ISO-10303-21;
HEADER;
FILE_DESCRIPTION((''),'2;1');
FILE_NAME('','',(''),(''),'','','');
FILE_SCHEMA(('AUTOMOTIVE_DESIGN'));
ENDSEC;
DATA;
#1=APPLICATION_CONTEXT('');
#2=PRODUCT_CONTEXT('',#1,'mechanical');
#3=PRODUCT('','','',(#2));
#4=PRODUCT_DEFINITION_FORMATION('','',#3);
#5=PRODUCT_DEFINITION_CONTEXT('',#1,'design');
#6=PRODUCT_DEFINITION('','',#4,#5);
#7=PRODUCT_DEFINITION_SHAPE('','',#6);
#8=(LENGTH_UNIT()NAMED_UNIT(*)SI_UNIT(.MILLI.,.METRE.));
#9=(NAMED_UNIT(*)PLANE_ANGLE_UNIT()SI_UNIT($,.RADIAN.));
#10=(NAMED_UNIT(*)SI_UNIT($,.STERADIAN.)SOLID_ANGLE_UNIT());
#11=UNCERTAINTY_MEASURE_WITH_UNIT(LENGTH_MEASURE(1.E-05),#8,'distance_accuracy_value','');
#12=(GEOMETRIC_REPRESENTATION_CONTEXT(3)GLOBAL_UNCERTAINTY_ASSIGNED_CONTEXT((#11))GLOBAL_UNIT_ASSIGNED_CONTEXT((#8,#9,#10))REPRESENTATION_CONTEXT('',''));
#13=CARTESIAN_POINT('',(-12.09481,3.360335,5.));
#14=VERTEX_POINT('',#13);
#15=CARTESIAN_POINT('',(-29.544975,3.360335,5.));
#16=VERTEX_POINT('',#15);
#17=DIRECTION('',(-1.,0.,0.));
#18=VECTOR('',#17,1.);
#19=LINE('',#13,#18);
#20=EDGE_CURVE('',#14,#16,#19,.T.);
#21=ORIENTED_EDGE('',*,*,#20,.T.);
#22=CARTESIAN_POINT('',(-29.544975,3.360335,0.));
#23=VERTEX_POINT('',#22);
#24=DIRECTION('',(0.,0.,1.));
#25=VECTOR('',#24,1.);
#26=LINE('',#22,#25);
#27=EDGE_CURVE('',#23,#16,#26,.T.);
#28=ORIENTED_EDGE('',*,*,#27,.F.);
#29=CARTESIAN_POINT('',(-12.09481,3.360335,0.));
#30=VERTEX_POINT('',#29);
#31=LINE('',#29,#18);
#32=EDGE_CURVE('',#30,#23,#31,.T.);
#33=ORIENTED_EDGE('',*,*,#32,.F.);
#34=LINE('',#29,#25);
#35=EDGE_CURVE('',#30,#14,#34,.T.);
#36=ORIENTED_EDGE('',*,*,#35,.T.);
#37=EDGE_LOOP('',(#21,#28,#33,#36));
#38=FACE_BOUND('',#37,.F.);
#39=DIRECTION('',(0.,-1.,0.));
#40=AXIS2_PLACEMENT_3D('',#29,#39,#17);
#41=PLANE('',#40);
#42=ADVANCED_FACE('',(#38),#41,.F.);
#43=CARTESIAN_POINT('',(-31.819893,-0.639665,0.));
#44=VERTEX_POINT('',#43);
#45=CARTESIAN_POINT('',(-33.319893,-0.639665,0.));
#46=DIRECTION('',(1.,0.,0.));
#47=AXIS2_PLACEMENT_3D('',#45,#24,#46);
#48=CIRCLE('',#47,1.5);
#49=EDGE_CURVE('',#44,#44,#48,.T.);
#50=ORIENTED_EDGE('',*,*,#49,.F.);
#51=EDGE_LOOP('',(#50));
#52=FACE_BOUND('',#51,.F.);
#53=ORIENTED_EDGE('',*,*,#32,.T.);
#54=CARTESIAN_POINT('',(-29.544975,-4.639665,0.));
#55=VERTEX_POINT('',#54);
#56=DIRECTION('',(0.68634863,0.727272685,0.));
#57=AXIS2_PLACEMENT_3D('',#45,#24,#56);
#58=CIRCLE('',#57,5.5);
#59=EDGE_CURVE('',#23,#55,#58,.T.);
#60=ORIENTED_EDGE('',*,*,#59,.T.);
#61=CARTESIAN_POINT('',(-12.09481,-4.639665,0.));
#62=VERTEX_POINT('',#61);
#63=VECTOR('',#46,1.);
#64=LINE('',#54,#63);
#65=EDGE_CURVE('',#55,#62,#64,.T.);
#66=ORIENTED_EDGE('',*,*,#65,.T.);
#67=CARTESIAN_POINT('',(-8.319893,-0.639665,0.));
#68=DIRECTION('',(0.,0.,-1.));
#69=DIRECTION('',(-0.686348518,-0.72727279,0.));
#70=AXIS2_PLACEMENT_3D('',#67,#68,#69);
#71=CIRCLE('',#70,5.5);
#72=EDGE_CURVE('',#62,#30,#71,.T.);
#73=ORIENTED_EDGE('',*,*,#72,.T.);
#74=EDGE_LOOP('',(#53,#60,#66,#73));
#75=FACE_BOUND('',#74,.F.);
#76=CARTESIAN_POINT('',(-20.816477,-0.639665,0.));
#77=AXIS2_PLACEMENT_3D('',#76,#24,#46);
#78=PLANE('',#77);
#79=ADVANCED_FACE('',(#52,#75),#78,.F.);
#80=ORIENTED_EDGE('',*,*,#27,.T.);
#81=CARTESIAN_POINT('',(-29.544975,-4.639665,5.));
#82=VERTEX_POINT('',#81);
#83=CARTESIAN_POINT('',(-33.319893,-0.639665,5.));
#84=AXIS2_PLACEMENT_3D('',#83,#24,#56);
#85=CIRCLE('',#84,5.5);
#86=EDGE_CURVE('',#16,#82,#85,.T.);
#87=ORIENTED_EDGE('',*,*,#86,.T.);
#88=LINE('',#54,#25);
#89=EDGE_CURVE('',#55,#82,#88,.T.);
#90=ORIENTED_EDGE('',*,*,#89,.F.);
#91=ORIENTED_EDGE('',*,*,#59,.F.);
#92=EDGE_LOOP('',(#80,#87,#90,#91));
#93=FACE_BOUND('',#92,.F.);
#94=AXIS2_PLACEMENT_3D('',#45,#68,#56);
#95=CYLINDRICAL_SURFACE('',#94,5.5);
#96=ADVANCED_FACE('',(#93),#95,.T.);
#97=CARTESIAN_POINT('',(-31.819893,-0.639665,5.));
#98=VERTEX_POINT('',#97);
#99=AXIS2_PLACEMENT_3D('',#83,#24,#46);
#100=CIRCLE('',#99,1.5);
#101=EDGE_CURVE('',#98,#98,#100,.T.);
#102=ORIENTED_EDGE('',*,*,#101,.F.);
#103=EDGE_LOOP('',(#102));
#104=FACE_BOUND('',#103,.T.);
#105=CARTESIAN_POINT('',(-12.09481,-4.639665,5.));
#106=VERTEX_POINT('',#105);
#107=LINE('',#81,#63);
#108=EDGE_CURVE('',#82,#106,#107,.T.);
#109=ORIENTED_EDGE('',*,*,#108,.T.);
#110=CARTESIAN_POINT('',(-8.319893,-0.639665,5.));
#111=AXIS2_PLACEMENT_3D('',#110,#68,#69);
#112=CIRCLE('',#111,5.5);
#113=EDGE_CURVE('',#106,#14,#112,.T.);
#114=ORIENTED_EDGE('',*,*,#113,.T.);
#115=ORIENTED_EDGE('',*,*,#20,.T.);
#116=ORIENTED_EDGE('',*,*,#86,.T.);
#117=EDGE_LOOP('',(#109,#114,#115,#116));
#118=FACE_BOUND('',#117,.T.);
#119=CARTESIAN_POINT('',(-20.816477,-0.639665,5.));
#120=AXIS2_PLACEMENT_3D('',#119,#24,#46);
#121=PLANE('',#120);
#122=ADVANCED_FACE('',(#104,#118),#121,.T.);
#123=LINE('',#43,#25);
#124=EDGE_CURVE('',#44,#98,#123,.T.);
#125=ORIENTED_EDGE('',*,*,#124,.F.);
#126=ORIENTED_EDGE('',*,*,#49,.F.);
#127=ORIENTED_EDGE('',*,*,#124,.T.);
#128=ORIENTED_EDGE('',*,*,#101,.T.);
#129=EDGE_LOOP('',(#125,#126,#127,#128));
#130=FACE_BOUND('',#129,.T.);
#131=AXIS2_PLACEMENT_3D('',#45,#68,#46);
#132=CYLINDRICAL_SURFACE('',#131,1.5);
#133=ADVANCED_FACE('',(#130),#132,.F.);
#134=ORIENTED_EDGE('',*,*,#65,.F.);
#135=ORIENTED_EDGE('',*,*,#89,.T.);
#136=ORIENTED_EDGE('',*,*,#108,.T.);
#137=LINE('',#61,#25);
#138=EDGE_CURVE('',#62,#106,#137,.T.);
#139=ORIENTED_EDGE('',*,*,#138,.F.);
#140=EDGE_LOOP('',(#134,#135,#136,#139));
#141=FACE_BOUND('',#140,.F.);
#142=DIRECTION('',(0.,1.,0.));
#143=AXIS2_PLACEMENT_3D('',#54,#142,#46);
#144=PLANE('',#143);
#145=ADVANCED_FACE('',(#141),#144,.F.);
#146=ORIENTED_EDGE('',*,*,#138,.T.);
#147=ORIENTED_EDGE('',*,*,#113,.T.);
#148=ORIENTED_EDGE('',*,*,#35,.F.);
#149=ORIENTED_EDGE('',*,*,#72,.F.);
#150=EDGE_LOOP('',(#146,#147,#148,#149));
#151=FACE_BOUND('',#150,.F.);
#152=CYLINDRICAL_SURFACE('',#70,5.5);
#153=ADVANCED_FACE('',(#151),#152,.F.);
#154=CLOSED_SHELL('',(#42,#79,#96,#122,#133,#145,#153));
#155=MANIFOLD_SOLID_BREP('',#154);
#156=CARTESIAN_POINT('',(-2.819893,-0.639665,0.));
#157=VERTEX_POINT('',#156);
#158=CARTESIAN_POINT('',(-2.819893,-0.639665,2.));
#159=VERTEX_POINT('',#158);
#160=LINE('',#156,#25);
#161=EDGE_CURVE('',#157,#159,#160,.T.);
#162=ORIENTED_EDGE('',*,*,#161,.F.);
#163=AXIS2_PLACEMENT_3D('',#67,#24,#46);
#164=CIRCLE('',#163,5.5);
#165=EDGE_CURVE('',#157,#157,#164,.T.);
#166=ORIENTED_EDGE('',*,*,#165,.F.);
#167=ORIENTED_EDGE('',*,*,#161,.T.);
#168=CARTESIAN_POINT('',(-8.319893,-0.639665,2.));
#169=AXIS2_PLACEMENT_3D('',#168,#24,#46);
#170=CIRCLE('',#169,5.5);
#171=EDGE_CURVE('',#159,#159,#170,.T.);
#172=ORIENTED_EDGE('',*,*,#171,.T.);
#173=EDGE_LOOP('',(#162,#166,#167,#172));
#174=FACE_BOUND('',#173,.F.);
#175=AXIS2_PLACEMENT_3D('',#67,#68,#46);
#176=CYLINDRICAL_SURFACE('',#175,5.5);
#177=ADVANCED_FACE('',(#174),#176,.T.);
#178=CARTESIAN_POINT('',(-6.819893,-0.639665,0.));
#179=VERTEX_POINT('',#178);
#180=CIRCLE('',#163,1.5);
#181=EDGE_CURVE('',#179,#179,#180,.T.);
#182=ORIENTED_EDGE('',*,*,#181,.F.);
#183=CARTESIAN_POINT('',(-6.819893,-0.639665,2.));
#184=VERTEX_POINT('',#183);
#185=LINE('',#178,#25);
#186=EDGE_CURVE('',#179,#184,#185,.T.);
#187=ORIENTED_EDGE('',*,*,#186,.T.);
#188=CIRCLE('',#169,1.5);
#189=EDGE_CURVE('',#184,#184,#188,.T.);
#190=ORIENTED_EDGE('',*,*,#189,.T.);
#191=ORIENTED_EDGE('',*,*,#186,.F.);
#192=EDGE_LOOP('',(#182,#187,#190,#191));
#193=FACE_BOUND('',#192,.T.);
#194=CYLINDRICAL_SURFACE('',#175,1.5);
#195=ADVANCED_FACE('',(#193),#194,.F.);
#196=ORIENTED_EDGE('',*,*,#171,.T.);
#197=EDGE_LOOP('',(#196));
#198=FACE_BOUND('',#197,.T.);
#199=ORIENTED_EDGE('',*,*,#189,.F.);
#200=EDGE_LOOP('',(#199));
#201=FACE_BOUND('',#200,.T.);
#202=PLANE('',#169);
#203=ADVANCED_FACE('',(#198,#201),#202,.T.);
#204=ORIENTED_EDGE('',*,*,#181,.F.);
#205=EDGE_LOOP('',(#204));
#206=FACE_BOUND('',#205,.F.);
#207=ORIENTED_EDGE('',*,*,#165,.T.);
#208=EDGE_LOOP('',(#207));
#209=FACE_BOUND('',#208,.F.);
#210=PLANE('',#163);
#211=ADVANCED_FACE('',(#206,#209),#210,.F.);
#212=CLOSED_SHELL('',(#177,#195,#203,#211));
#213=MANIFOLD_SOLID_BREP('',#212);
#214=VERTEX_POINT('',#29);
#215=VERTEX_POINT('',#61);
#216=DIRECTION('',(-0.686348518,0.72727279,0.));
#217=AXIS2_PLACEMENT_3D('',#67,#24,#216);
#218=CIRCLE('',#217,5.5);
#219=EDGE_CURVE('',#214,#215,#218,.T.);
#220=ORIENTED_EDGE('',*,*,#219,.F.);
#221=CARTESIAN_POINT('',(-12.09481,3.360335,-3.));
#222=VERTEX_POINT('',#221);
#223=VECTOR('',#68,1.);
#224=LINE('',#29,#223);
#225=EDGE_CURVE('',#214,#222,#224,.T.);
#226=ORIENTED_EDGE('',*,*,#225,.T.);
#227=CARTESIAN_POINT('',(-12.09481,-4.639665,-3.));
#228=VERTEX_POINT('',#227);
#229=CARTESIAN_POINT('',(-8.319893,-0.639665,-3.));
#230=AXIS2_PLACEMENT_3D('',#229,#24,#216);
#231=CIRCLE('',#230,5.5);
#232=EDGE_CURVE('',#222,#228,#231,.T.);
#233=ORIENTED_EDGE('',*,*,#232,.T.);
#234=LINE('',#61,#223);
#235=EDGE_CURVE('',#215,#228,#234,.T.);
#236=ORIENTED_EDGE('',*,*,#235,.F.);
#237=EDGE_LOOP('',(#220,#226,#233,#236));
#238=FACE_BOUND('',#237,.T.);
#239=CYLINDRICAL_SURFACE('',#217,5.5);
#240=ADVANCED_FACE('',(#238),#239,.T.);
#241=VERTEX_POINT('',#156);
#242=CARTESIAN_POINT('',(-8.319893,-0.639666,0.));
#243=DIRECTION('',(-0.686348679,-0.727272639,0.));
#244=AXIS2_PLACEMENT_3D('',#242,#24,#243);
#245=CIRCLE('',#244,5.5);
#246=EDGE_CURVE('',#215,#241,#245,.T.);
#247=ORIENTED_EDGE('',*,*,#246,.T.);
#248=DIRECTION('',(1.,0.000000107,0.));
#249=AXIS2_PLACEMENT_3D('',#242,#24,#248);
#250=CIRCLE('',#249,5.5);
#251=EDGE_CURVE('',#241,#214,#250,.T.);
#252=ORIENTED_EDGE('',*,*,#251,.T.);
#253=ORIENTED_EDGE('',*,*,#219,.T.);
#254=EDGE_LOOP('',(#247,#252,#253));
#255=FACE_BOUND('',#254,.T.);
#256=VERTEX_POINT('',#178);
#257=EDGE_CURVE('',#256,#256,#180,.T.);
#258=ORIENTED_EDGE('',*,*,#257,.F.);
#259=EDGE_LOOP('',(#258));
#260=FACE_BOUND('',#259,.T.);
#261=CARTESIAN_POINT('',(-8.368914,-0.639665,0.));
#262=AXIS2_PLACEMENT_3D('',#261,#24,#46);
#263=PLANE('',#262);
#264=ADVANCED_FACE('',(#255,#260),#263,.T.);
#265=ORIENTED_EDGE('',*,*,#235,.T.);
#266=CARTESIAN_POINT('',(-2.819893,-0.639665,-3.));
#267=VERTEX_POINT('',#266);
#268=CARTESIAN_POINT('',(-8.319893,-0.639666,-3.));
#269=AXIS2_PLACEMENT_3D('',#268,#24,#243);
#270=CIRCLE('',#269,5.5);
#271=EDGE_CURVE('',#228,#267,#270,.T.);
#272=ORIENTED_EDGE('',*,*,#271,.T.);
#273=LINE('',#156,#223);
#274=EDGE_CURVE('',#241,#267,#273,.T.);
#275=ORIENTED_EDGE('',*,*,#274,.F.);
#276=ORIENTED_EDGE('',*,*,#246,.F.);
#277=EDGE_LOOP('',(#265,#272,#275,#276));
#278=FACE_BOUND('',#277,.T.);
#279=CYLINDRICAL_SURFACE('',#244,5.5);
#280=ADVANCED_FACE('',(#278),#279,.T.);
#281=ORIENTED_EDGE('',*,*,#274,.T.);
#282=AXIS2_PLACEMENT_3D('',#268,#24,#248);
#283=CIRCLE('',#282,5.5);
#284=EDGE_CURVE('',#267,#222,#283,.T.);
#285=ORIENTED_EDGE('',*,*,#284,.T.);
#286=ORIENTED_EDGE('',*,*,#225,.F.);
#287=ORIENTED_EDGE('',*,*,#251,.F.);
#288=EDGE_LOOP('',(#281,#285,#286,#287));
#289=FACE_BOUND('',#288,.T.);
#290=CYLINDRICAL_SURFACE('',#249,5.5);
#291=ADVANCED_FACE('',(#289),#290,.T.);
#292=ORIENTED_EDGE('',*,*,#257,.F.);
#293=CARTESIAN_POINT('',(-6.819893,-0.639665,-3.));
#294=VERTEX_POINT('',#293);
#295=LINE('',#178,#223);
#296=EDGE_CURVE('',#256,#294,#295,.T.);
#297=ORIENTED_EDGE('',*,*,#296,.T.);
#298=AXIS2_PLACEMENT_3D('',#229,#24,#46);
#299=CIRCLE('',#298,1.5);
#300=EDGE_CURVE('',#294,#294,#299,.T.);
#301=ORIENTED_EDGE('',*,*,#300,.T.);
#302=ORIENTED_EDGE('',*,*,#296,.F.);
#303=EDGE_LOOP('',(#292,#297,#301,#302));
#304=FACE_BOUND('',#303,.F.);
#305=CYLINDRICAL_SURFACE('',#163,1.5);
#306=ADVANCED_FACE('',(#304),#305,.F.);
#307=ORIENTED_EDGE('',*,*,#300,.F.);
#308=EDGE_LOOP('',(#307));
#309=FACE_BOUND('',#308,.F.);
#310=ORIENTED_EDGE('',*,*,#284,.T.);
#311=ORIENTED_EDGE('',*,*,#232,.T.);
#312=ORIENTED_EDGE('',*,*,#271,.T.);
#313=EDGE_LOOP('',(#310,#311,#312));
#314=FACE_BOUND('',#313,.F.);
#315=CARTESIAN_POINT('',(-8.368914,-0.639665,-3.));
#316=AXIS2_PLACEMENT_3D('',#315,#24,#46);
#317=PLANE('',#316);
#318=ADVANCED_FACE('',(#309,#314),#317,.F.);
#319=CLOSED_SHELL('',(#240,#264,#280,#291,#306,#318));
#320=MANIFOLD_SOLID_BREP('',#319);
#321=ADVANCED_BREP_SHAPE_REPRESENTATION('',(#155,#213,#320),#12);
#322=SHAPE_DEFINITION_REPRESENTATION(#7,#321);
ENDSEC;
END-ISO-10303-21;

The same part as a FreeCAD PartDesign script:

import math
import FreeCAD as App
import Part
import Sketcher

doc = App.newDocument("Part")
params = doc.addObject("Spreadsheet::Sheet", "Params")
for row, (alias, value) in enumerate([
    ("sketch1_diameter", "3 mm"),
    ("sketch1_radius", "5.5 mm"),
    ("pad1_length", "3 mm"),
    ("sketch2_diameter", "3 mm"),
    ("sketch2_radius", "5.5 mm"),
    ("pad2_length", "5 mm"),
    ("sketch3_diameter", "11 mm"),
    ("sketch3_diameter2", "3 mm"),
    ("pad3_length", "2 mm"),
], start=1):
    params.set(f"A{row}", alias)
    params.set(f"B{row}", "=" + value)
    params.setAlias(f"B{row}", alias)

body = doc.addObject("PartDesign::Body", "Body")

sketch1 = body.newObject("Sketcher::SketchObject", "Sketch")
sketch1.AttachmentSupport = (doc.getObject("XY_Plane"), [""])
sketch1.MapMode = "FlatFace"
sketch1.addGeometry([
    Part.ArcOfCircle(Part.Circle(App.Vector(-8.3, -0.6, 0), App.Vector(0, 0, 1), 5.5), math.radians(0), math.radians(133)),
    Part.ArcOfCircle(Part.Circle(App.Vector(-8.3, -0.6, 0), App.Vector(0, 0, 1), 5.5), math.radians(133), math.radians(227)),
    Part.ArcOfCircle(Part.Circle(App.Vector(-8.3, -0.6, 0), App.Vector(0, 0, 1), 5.5), math.radians(-133), math.radians(0)),
    Part.Circle(App.Vector(-8.3, -0.6, 0), App.Vector(0, 0, 1), 1.5),
], False)
sketch1.addConstraint([
    Sketcher.Constraint("Tangent", 0, 2, 1, 1),
    Sketcher.Constraint("Tangent", 1, 2, 2, 1),
    Sketcher.Constraint("Tangent", 2, 2, 0, 1),
    Sketcher.Constraint("Coincident", 3, 3, 0, 3),
    Sketcher.Constraint("Horizontal", 3, 3, 2, 2),
    Sketcher.Constraint("Vertical", 0, 2, 1, 2),
    Sketcher.Constraint("Diameter", 3, 3.0),
    Sketcher.Constraint("Radius", 0, 5.5),
    Sketcher.Constraint("DistanceY", 1, 3, 0, 2, 4.0),
    Sketcher.Constraint("DistanceX", 0, 2, -1, 1, 12.09481),
    Sketcher.Constraint("DistanceY", 0, 3, -1, 1, 0.639666),
])
sketch1.setExpression("Constraints[6]", "Params.sketch1_diameter")
sketch1.setExpression("Constraints[7]", "Params.sketch1_radius")
pad1 = body.newObject("PartDesign::Pad", "Pad")
pad1.Profile = sketch1
pad1.setExpression("Length", "Params.pad1_length")
pad1.Reversed = True
body2 = doc.addObject("PartDesign::Body", "Body001")

sketch2 = body2.newObject("Sketcher::SketchObject", "Sketch001")
sketch2.AttachmentSupport = (doc.getObject("XY_Plane001"), [""])
sketch2.MapMode = "FlatFace"
sketch2.addGeometry([
    Part.LineSegment(App.Vector(-29.5, -4.6, 0), App.Vector(-12.1, -4.6, 0)),
    Part.ArcOfCircle(Part.Circle(App.Vector(-8.3, -0.6, 0), App.Vector(0, 0, 1), 5.5), math.radians(133), math.radians(227)),
    Part.LineSegment(App.Vector(-12.1, 3.4, 0), App.Vector(-29.5, 3.4, 0)),
    Part.ArcOfCircle(Part.Circle(App.Vector(-33.3, -0.6, 0), App.Vector(0, 0, 1), 5.5), math.radians(47), math.radians(313)),
    Part.Circle(App.Vector(-33.3, -0.6, 0), App.Vector(0, 0, 1), 1.5),
], False)
sketch2.addConstraint([
    Sketcher.Constraint("Coincident", 0, 2, 1, 2),
    Sketcher.Constraint("Coincident", 1, 1, 2, 1),
    Sketcher.Constraint("Coincident", 2, 2, 3, 1),
    Sketcher.Constraint("Coincident", 3, 2, 0, 1),
    Sketcher.Constraint("Horizontal", 0),
    Sketcher.Constraint("Horizontal", 2),
    Sketcher.Constraint("Coincident", 4, 3, 3, 3),
    Sketcher.Constraint("Equal", 1, 3),
    Sketcher.Constraint("Horizontal", 1, 3, 3, 3),
    Sketcher.Constraint("Vertical", 0, 2, 1, 1),
    Sketcher.Constraint("Diameter", 4, 3.0),
    Sketcher.Constraint("Radius", 1, 5.5),
    Sketcher.Constraint("DistanceX", 3, 3, 1, 3, 24.999999),
    Sketcher.Constraint("DistanceY", 0, 2, 1, 3, 4.0),
    Sketcher.Constraint("DistanceX", 0, 2, -1, 1, 12.09481),
    Sketcher.Constraint("DistanceY", 1, 3, -1, 1, 0.639665),
])
sketch2.setExpression("Constraints[10]", "Params.sketch2_diameter")
sketch2.setExpression("Constraints[11]", "Params.sketch2_radius")
pad2 = body2.newObject("PartDesign::Pad", "Pad001")
pad2.Profile = sketch2
pad2.setExpression("Length", "Params.pad2_length")
body3 = doc.addObject("PartDesign::Body", "Body002")

sketch3 = body3.newObject("Sketcher::SketchObject", "Sketch002")
sketch3.AttachmentSupport = (doc.getObject("XY_Plane002"), [""])
sketch3.MapMode = "FlatFace"
sketch3.addGeometry([
    Part.Circle(App.Vector(-8.3, -0.6, 0), App.Vector(0, 0, 1), 5.5),
    Part.Circle(App.Vector(-8.3, -0.6, 0), App.Vector(0, 0, 1), 1.5),
], False)
sketch3.addConstraint([
    Sketcher.Constraint("Coincident", 1, 3, 0, 3),
    Sketcher.Constraint("Diameter", 0, 11.0),
    Sketcher.Constraint("Diameter", 1, 3.0),
    Sketcher.Constraint("DistanceX", 0, 3, -1, 1, 8.319893),
    Sketcher.Constraint("DistanceY", 0, 3, -1, 1, 0.639665),
])
sketch3.setExpression("Constraints[1]", "Params.sketch3_diameter")
sketch3.setExpression("Constraints[2]", "Params.sketch3_diameter2")
pad3 = body3.newObject("PartDesign::Pad", "Pad002")
pad3.Profile = sketch3
pad3.setExpression("Length", "Params.pad3_length")

doc.recompute()
